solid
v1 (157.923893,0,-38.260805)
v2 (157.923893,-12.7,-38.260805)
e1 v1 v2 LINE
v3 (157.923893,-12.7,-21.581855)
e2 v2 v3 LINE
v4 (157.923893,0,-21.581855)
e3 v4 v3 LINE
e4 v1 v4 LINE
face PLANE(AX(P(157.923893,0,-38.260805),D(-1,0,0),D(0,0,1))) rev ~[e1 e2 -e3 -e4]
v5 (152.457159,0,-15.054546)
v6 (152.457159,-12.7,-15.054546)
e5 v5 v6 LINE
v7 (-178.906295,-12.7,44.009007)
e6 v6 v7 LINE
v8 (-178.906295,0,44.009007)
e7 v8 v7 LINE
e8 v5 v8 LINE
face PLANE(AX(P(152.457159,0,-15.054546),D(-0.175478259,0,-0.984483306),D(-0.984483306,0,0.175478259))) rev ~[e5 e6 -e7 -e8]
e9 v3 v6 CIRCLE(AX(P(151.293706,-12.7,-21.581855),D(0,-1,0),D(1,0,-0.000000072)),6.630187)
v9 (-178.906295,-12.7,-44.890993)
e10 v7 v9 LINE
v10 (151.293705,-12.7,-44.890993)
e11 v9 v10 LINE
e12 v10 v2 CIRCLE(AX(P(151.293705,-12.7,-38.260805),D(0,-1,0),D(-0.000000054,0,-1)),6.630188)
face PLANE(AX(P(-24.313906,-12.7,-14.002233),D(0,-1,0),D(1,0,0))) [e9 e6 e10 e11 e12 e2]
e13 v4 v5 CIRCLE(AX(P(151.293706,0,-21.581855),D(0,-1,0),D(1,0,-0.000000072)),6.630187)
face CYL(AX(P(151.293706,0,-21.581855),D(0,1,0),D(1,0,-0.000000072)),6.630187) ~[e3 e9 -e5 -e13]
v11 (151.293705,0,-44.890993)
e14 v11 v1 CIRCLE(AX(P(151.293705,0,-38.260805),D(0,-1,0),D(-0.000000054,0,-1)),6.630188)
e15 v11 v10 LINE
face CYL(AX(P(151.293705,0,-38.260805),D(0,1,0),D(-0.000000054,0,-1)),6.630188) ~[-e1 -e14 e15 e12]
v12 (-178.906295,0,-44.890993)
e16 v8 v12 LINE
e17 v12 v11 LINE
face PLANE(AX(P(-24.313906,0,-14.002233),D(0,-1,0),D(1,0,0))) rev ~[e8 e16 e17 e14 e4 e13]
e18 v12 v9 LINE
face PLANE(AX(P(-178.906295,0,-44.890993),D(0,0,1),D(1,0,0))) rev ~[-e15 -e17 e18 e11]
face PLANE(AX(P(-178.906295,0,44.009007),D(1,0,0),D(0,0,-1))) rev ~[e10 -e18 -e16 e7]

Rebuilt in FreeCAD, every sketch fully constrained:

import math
import FreeCAD as App
import Part
import Sketcher
Q = App.Units.Quantity

doc = App.newDocument("Part")
body = doc.addObject("PartDesign::Body", "Body")

sketch1 = doc.addObject("Sketcher::SketchObject", "Sketch")
body.addObject(sketch1)
sketch1.AttachmentSupport = (doc.XZ_Plane, [""])
sketch1.MapMode = "FlatFace"
sketch1.addGeometry([
    Part.LineSegment(App.Vector(152, -15, 0), App.Vector(-179, 44, 0)),
    Part.LineSegment(App.Vector(-179, 44, 0), App.Vector(-179, -45, 0)),
    Part.LineSegment(App.Vector(-179, -45, 0), App.Vector(151, -45, 0)),
    Part.ArcOfCircle(Part.Circle(App.Vector(151, -38, 0), App.Vector(0, 0, 1), 7), math.radians(-90), math.radians(0)),
    Part.LineSegment(App.Vector(158, -38, 0), App.Vector(158, -22, 0)),
    Part.ArcOfCircle(Part.Circle(App.Vector(151, -22, 0), App.Vector(0, 0, 1), 7), math.radians(0), math.radians(80)),
], False)
sketch1.addConstraint([
    Sketcher.Constraint("Coincident", 0, 2, 1, 1),
    Sketcher.Constraint("Coincident", 1, 2, 2, 1),
    Sketcher.Constraint("Tangent", 2, 2, 3, 1),
    Sketcher.Constraint("Tangent", 3, 2, 4, 1),
    Sketcher.Constraint("Tangent", 4, 2, 5, 1),
    Sketcher.Constraint("Tangent", 5, 2, 0, 1),
    Sketcher.Constraint("Vertical", 1),
    Sketcher.Constraint("Horizontal", 2),
    Sketcher.Constraint("Vertical", 4),
    Sketcher.Constraint("Equal", 3, 5),
    Sketcher.Constraint("DistanceX", 2, 1, 2, 2, Q("13 in")),
    Sketcher.Constraint("DistanceY", 1, 2, 1, 1, Q("3.5 in")),
    Sketcher.Constraint("Radius", 3, 6.630188),
    Sketcher.Constraint("DistanceY", 4, 1, 4, 2, 16.67895),
    Sketcher.Constraint("DistanceX", -1, 1, 5, 2, 152.457159),
    Sketcher.Constraint("DistanceY", 3, 3, -1, 1, 38.260805),
])
pad1 = doc.addObject("PartDesign::Pad", "Pad")
body.addObject(pad1)
pad1.Profile = sketch1
pad1.Length = Q("0.5 in")

doc.recompute()
